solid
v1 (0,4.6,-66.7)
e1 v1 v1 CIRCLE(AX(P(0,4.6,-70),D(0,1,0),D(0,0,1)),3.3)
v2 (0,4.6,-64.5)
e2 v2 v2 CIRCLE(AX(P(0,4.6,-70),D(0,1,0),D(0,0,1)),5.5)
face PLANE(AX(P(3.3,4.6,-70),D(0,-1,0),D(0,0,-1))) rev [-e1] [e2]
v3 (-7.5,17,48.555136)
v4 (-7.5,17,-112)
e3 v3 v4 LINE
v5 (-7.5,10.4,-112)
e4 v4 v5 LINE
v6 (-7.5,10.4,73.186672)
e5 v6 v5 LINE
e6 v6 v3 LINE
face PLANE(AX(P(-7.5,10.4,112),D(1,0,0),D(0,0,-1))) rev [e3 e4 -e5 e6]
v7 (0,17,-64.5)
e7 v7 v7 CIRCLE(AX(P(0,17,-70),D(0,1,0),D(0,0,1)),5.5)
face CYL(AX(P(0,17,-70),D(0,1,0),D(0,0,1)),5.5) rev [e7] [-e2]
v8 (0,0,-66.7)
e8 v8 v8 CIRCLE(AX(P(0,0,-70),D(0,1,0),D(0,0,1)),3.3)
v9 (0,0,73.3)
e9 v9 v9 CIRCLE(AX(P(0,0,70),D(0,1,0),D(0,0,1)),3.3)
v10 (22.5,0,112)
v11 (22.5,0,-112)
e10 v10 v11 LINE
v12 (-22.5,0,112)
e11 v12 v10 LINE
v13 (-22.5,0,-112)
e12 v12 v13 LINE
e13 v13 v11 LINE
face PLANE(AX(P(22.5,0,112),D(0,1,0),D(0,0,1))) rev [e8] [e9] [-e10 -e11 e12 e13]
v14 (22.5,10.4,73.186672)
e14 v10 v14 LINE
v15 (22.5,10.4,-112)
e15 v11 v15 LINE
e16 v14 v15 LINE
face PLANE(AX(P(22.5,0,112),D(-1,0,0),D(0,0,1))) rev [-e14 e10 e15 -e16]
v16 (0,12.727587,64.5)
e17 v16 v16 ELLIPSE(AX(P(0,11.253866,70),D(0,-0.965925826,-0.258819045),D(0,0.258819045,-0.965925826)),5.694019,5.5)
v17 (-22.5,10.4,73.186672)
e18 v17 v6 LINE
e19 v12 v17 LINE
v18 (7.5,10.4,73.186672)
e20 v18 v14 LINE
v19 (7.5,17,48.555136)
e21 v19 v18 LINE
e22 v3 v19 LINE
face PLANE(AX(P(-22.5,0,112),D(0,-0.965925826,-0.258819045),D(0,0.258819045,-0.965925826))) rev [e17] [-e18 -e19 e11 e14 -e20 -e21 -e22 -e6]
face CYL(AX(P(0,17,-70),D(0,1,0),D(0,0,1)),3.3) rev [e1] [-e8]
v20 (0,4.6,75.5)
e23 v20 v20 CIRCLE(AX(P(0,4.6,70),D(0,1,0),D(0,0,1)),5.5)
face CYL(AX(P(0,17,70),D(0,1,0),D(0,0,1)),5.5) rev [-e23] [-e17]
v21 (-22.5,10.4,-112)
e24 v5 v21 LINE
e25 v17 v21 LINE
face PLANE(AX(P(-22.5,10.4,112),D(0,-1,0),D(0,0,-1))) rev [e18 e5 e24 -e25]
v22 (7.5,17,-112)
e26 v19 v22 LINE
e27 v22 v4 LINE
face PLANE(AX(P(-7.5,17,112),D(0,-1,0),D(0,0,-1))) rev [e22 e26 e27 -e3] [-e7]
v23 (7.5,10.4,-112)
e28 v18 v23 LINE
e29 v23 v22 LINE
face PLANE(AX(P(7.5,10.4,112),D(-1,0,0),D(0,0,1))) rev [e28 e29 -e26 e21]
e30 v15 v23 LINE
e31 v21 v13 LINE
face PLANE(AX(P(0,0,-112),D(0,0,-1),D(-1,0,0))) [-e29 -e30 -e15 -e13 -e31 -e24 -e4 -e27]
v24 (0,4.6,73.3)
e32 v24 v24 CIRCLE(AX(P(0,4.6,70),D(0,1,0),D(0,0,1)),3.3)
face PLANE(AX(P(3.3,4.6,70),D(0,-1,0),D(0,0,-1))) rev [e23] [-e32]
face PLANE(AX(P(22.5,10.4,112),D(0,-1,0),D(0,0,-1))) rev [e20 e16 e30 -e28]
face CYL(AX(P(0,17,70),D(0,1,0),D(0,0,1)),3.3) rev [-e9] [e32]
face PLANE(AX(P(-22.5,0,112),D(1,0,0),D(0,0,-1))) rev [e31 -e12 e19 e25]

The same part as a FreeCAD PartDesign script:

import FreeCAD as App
import Part
import Sketcher

V = App.Vector
Q = App.Units.Quantity

doc = App.newDocument("Part")
body = doc.addObject("PartDesign::Body", "Body")

# Sketch on XY plane
sketch1 = doc.addObject("Sketcher::SketchObject", "Sketch")
body.addObject(sketch1)
sketch1.AttachmentSupport = (doc.XY_Plane, [""])
sketch1.MapMode = "FlatFace"
sketch1.addGeometry(Part.LineSegment(V(-22, 0, 0), V(22, 0, 0)), False)
sketch1.addGeometry(Part.LineSegment(V(22, 0, 0), V(22, 10, 0)), False)
sketch1.addGeometry(Part.LineSegment(V(22, 10, 0), V(8, 10, 0)), False)
sketch1.addGeometry(Part.LineSegment(V(8, 10, 0), V(8, 17, 0)), False)
sketch1.addGeometry(Part.LineSegment(V(8, 17, 0), V(-8, 17, 0)), False)
sketch1.addGeometry(Part.LineSegment(V(-8, 17, 0), V(-8, 10, 0)), False)
sketch1.addGeometry(Part.LineSegment(V(-8, 10, 0), V(-22, 10, 0)), False)
sketch1.addGeometry(Part.LineSegment(V(-22, 10, 0), V(-22, 0, 0)), False)
sketch1.addConstraint(Sketcher.Constraint("Coincident", 0, 2, 1, 1))
sketch1.addConstraint(Sketcher.Constraint("Coincident", 1, 2, 2, 1))
sketch1.addConstraint(Sketcher.Constraint("Coincident", 2, 2, 3, 1))
sketch1.addConstraint(Sketcher.Constraint("Coincident", 3, 2, 4, 1))
sketch1.addConstraint(Sketcher.Constraint("Coincident", 4, 2, 5, 1))
sketch1.addConstraint(Sketcher.Constraint("Coincident", 5, 2, 6, 1))
sketch1.addConstraint(Sketcher.Constraint("Coincident", 6, 2, 7, 1))
sketch1.addConstraint(Sketcher.Constraint("Coincident", 7, 2, 0, 1))
sketch1.addConstraint(Sketcher.Constraint("Horizontal", 0))
sketch1.addConstraint(Sketcher.Constraint("Vertical", 1))
sketch1.addConstraint(Sketcher.Constraint("Horizontal", 2))
sketch1.addConstraint(Sketcher.Constraint("Vertical", 3))
sketch1.addConstraint(Sketcher.Constraint("Horizontal", 4))
sketch1.addConstraint(Sketcher.Constraint("Vertical", 5))
sketch1.addConstraint(Sketcher.Constraint("Horizontal", 6))
sketch1.addConstraint(Sketcher.Constraint("Vertical", 7))
sketch1.addConstraint(Sketcher.Constraint("Symmetric", 0, 2, 7, 2, -1, 1))
sketch1.addConstraint(Sketcher.Constraint("Symmetric", 2, 2, 5, 2, -2))
sketch1.addConstraint(Sketcher.Constraint("Equal", 2, 4))
sketch1.addConstraint(Sketcher.Constraint("DistanceX", 0, 1, 0, 2, 45.0))
sketch1.addConstraint(Sketcher.Constraint("DistanceY", 1, 1, 1, 2, 10.4))
sketch1.addConstraint(Sketcher.Constraint("DistanceY", 3, 1, 3, 2, 6.6))
pad1 = doc.addObject("PartDesign::Pad", "Pad")
body.addObject(pad1)
pad1.Profile = sketch1
pad1.Length = 224
pad1.Midplane = True

# Sketch on YZ plane
sketch2 = doc.addObject("Sketcher::SketchObject", "Sketch001")
body.addObject(sketch2)
sketch2.AttachmentSupport = (doc.YZ_Plane, [""])
sketch2.MapMode = "FlatFace"
sketch2.AttachmentOffset = App.Placement(V(0, 0, 22.5), App.Rotation())
sketch2.addGeometry(Part.LineSegment(V(0, 112, 0), V(17, 49, 0)), False)
sketch2.addGeometry(Part.LineSegment(V(17, 49, 0), V(17, 112, 0)), False)
sketch2.addGeometry(Part.LineSegment(V(17, 112, 0), V(0, 112, 0)), False)
sketch2.addConstraint(Sketcher.Constraint("Coincident", 0, 2, 1, 1))
sketch2.addConstraint(Sketcher.Constraint("Coincident", 1, 2, 2, 1))
sketch2.addConstraint(Sketcher.Constraint("Coincident", 2, 2, 0, 1))
sketch2.addConstraint(Sketcher.Constraint("Vertical", 1))
sketch2.addConstraint(Sketcher.Constraint("Horizontal", 2))
sketch2.addConstraint(Sketcher.Constraint("PointOnObject", 2, 2, -2))
sketch2.addConstraint(Sketcher.Constraint("DistanceX", 2, 2, 2, 1, 17.0))
sketch2.addConstraint(Sketcher.Constraint("Angle", 0, Q("-75 deg")))
sketch2.addConstraint(Sketcher.Constraint("DistanceY", -1, 1, 1, 2, 112.0))
pocket1 = doc.addObject("PartDesign::Pocket", "Pocket")
body.addObject(pocket1)
pocket1.Profile = sketch2
pocket1.Type = "ThroughAll"

# Sketch on XZ plane
sketch3 = doc.addObject("Sketcher::SketchObject", "Sketch002")
body.addObject(sketch3)
sketch3.AttachmentSupport = (doc.XZ_Plane, [""])
sketch3.MapMode = "FlatFace"
sketch3.AttachmentOffset = App.Placement(V(0, 0, -17), App.Rotation())
sketch3.addGeometry(Part.Circle(V(0, 210, 0), V(0, 0, 1), 3.3), False)
sketch3.addGeometry(Part.Circle(V(0, -70, 0), V(0, 0, 1), 3.3), False)
sketch3.addGeometry(Part.Circle(V(0, 70, 0), V(0, 0, 1), 3.3), False)
sketch3.addConstraint(Sketcher.Constraint("Equal", 0, 1))
sketch3.addConstraint(Sketcher.Constraint("Equal", 1, 2))
sketch3.addConstraint(Sketcher.Constraint("Symmetric", 1, 3, 2, 3, -1, 1))
sketch3.addConstraint(Sketcher.Constraint("PointOnObject", 0, 3, -2))
sketch3.addConstraint(Sketcher.Constraint("PointOnObject", 1, 3, -2))
sketch3.addConstraint(Sketcher.Constraint("Diameter", 0, 6.6))
sketch3.addConstraint(Sketcher.Constraint("DistanceY", -1, 1, 0, 3, 210.0))
sketch3.addConstraint(Sketcher.Constraint("DistanceY", 1, 3, -1, 1, 70.0))
doc.recompute()
hole = doc.addObject("PartDesign::Hole", "Hole")
body.addObject(hole)
hole.Profile = sketch3
hole.ThreadType = "None"
hole.Diameter = 6.6
hole.DepthType = "Dimension"
hole.Depth = 20
hole.DrillPoint = "Angled"
hole.DrillPointAngle = 118
hole.HoleCutType = "Counterbore"
hole.HoleCutDiameter = 11
hole.HoleCutDepth = 12.4
hole.Reversed = True

doc.recompute()
